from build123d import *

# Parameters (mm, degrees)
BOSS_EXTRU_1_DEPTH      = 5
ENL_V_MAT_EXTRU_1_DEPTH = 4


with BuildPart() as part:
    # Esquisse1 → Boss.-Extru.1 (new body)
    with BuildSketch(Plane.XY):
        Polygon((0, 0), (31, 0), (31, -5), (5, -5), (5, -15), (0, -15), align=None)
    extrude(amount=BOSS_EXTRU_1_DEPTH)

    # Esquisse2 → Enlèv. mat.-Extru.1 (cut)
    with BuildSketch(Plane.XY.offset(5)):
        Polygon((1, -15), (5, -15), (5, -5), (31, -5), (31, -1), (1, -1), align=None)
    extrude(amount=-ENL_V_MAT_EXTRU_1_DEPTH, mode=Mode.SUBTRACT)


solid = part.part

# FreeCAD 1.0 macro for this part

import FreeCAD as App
import Part
import Sketcher
Q = App.Units.Quantity

doc = App.newDocument("Part")
body = doc.addObject("PartDesign::Body", "Body")

# Sketch on XY plane
sketch1 = body.newObject("Sketcher::SketchObject", "Sketch")
sketch1.AttachmentSupport = (doc.getObject("XY_Plane"), [""])
sketch1.MapMode = "FlatFace"
sketch1.addGeometry(Part.LineSegment(App.Vector(31, 0, 0), App.Vector(0, 0, 0)), False)
sketch1.addGeometry(Part.LineSegment(App.Vector(0, 0, 0), App.Vector(0, -15, 0)), False)
sketch1.addGeometry(Part.LineSegment(App.Vector(0, -15, 0), App.Vector(5, -15, 0)), False)
sketch1.addGeometry(Part.LineSegment(App.Vector(5, -15, 0), App.Vector(5, -5, 0)), False)
sketch1.addGeometry(Part.LineSegment(App.Vector(5, -5, 0), App.Vector(31, -5, 0)), False)
sketch1.addGeometry(Part.LineSegment(App.Vector(31, -5, 0), App.Vector(31, 0, 0)), False)
sketch1.addConstraint(Sketcher.Constraint("Coincident", 0, 2, 1, 1))
sketch1.addConstraint(Sketcher.Constraint("Coincident", 1, 2, 2, 1))
sketch1.addConstraint(Sketcher.Constraint("Coincident", 2, 2, 3, 1))
sketch1.addConstraint(Sketcher.Constraint("Coincident", 3, 2, 4, 1))
sketch1.addConstraint(Sketcher.Constraint("Coincident", 4, 2, 5, 1))
sketch1.addConstraint(Sketcher.Constraint("Coincident", 5, 2, 0, 1))
sketch1.addConstraint(Sketcher.Constraint("Horizontal", 0))
sketch1.addConstraint(Sketcher.Constraint("Vertical", 1))
sketch1.addConstraint(Sketcher.Constraint("Horizontal", 2))
sketch1.addConstraint(Sketcher.Constraint("Vertical", 3))
sketch1.addConstraint(Sketcher.Constraint("Horizontal", 4))
sketch1.addConstraint(Sketcher.Constraint("Vertical", 5))
sketch1.addConstraint(Sketcher.Constraint("Coincident", 0, 2, -1, 1))
sketch1.addConstraint(Sketcher.Constraint("Equal", 2, 5))
sketch1.addConstraint(Sketcher.Constraint("DistanceX", 0, 2, 0, 1, Q("31 mm")))
sketch1.addConstraint(Sketcher.Constraint("DistanceX", 2, 1, 2, 2, Q("5 mm")))
sketch1.addConstraint(Sketcher.Constraint("DistanceY", 1, 2, 1, 1, Q("15 mm")))
pad1 = body.newObject("PartDesign::Pad", "Pad")
pad1.Profile = sketch1
pad1.Length = 5

# Sketch on XY plane
sketch2 = body.newObject("Sketcher::SketchObject", "Sketch001")
sketch2.AttachmentSupport = (doc.getObject("XY_Plane"), [""])
sketch2.MapMode = "FlatFace"
sketch2.AttachmentOffset = App.Placement(App.Vector(0, 0, 5), App.Rotation())
sketch2.addGeometry(Part.LineSegment(App.Vector(1, -15, 0), App.Vector(5, -15, 0)), False)
sketch2.addGeometry(Part.LineSegment(App.Vector(5, -15, 0), App.Vector(5, -5, 0)), False)
sketch2.addGeometry(Part.LineSegment(App.Vector(5, -5, 0), App.Vector(31, -5, 0)), False)
sketch2.addGeometry(Part.LineSegment(App.Vector(31, -5, 0), App.Vector(31, -1, 0)), False)
sketch2.addGeometry(Part.LineSegment(App.Vector(31, -1, 0), App.Vector(1, -1, 0)), False)
sketch2.addGeometry(Part.LineSegment(App.Vector(1, -1, 0), App.Vector(1, -15, 0)), False)
sketch2.addConstraint(Sketcher.Constraint("Coincident", 0, 2, 1, 1))
sketch2.addConstraint(Sketcher.Constraint("Coincident", 1, 2, 2, 1))
sketch2.addConstraint(Sketcher.Constraint("Coincident", 2, 2, 3, 1))
sketch2.addConstraint(Sketcher.Constraint("Coincident", 3, 2, 4, 1))
sketch2.addConstraint(Sketcher.Constraint("Coincident", 4, 2, 5, 1))
sketch2.addConstraint(Sketcher.Constraint("Coincident", 5, 2, 0, 1))
sketch2.addConstraint(Sketcher.Constraint("Horizontal", 0))
sketch2.addConstraint(Sketcher.Constraint("Vertical", 1))
sketch2.addConstraint(Sketcher.Constraint("Horizontal", 2))
sketch2.addConstraint(Sketcher.Constraint("Vertical", 3))
sketch2.addConstraint(Sketcher.Constraint("Horizontal", 4))
sketch2.addConstraint(Sketcher.Constraint("Vertical", 5))
sketch2.addConstraint(Sketcher.Constraint("Equal", 0, 3))
sketch2.addConstraint(Sketcher.Constraint("DistanceX", 0, 1, 0, 2, Q("4 mm")))
sketch2.addConstraint(Sketcher.Constraint("DistanceX", 2, 1, 2, 2, Q("26 mm")))
sketch2.addConstraint(Sketcher.Constraint("DistanceY", 1, 1, 1, 2, Q("10 mm")))
sketch2.addConstraint(Sketcher.Constraint("DistanceX", -1, 1, 0, 2, Q("5 mm")))
sketch2.addConstraint(Sketcher.Constraint("DistanceY", 0, 2, -1, 1, Q("15 mm")))
pocket1 = body.newObject("PartDesign::Pocket", "Pocket")
pocket1.Profile = sketch2
pocket1.Length = 4

doc.recompute()
